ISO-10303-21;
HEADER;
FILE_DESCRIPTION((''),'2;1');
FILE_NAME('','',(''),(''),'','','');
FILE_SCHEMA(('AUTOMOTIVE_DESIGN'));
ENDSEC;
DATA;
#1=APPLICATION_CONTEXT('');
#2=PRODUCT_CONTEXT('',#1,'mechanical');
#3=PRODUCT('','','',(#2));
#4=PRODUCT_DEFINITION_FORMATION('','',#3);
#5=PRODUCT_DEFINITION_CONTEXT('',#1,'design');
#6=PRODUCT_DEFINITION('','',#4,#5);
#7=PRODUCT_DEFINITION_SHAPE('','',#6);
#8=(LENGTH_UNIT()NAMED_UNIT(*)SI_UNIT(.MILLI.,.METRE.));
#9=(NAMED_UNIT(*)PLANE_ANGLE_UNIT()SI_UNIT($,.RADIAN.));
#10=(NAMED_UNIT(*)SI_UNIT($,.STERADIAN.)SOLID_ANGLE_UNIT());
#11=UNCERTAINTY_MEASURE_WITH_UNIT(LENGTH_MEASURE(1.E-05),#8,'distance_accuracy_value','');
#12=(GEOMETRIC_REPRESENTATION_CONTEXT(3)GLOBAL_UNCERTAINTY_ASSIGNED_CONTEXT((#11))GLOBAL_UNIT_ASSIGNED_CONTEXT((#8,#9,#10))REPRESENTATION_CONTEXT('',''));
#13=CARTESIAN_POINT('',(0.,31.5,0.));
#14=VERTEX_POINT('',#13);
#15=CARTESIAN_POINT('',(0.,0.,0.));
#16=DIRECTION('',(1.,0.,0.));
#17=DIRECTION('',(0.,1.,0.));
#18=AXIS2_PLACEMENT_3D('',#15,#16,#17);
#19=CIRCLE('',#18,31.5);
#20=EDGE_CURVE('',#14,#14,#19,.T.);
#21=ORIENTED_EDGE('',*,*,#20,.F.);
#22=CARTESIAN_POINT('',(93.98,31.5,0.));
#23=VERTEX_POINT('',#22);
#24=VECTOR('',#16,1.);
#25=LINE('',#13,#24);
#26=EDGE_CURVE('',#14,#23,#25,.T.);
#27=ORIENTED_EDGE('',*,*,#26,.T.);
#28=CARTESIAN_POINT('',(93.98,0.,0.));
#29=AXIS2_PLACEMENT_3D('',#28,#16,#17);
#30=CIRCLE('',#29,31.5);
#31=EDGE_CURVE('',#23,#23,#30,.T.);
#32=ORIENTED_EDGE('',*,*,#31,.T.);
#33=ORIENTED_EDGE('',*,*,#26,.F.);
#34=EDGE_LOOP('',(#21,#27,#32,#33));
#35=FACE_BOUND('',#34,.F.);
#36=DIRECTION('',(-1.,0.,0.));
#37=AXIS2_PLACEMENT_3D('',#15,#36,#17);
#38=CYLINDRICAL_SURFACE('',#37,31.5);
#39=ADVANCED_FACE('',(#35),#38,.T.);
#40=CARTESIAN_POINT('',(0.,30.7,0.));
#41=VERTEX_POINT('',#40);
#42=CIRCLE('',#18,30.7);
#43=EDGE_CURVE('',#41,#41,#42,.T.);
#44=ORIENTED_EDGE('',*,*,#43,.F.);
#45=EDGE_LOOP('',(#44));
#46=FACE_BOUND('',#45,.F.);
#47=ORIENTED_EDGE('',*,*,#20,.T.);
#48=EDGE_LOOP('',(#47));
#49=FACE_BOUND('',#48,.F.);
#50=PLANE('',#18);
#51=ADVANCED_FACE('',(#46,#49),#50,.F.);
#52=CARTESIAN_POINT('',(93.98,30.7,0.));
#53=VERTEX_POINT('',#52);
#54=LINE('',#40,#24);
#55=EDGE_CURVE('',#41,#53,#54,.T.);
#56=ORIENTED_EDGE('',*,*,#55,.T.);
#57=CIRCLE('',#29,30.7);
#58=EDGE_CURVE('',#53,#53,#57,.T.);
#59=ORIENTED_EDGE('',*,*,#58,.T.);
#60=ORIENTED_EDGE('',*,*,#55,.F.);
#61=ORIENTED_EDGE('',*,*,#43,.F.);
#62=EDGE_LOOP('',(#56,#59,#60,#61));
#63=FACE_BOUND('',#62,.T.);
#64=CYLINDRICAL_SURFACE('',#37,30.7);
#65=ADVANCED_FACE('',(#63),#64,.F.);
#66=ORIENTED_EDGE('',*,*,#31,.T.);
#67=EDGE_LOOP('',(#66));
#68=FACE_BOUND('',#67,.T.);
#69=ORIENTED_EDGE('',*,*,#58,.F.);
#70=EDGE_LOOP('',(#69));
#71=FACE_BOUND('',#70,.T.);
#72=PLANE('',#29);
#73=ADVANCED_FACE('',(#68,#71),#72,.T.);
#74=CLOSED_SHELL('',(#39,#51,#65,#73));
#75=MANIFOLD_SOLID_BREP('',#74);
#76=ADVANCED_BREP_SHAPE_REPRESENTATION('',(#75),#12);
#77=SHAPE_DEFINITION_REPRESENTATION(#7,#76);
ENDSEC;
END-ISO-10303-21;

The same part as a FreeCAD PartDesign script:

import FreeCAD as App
import Part
import Sketcher

V = App.Vector
Q = App.Units.Quantity

doc = App.newDocument("Part")
params = doc.addObject("Spreadsheet::Sheet", "Params")
for row, (alias, value) in enumerate([
    ("sketch1_diameter", "63 mm"),
    ("sketch1_diameter2", "61.4 mm"),
    ("pad1_length", "93.98 mm"),
], start=1):
    params.set(f"A{row}", alias)
    params.set(f"B{row}", "=" + value)
    params.setAlias(f"B{row}", alias)

body = doc.addObject("PartDesign::Body", "Body")

# Sketch on YZ plane
sketch1 = body.newObject("Sketcher::SketchObject", "Sketch")
sketch1.AttachmentSupport = (doc.getObject("YZ_Plane"), [""])
sketch1.MapMode = "FlatFace"
sketch1.addGeometry([
    Part.Circle(V(0, 0, 0), V(0, 0, 1), 31.5),
    Part.Circle(V(0, 0, 0), V(0, 0, 1), 30.7),
], False)
sketch1.addConstraint([
    Sketcher.Constraint("Coincident", 0, 3, -1, 1),
    Sketcher.Constraint("Coincident", 1, 3, -1, 1),
    Sketcher.Constraint("Diameter", 0, Q("63 mm")),
    Sketcher.Constraint("Diameter", 1, Q("61.4 mm")),
])
sketch1.setExpression("Constraints[2]", "Params.sketch1_diameter")
sketch1.setExpression("Constraints[3]", "Params.sketch1_diameter2")
pad1 = body.newObject("PartDesign::Pad", "Pad")
pad1.Profile = sketch1
pad1.setExpression("Length", "Params.pad1_length")

doc.recompute()
